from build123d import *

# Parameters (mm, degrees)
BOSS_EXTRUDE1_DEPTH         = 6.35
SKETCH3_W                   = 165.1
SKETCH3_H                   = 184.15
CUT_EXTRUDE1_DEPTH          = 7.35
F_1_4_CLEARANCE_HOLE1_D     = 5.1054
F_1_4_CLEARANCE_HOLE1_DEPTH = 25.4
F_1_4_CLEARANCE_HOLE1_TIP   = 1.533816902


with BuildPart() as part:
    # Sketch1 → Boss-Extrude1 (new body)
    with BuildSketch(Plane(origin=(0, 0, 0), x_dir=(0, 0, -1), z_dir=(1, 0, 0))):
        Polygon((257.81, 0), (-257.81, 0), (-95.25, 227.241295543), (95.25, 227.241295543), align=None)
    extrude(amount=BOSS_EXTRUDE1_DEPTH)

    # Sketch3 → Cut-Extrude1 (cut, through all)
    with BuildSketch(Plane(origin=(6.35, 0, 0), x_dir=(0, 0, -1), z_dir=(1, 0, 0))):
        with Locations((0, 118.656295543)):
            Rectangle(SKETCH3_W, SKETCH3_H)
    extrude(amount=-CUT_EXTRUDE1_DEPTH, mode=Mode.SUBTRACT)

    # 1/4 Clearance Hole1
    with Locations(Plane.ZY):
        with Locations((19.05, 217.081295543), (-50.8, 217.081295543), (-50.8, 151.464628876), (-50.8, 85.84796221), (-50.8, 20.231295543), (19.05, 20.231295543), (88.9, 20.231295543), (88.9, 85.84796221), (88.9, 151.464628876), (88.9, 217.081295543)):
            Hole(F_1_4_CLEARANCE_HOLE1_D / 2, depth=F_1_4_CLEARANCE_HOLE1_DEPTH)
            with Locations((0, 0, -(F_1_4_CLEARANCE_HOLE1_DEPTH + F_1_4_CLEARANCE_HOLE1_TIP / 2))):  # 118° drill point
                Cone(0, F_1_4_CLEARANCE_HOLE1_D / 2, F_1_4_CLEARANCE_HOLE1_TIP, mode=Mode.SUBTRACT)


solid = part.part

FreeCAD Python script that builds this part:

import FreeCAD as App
import Part
import Sketcher

V = App.Vector
Q = App.Units.Quantity

doc = App.newDocument("Part")
body = doc.addObject("PartDesign::Body", "Body")

sketch1 = doc.addObject("Sketcher::SketchObject", "Sketch")
body.addObject(sketch1)
sketch1.AttachmentSupport = (doc.YZ_Plane, [""])
sketch1.MapMode = "FlatFace"
sketch1.addGeometry([
    Part.LineSegment(V(0, 257.81, 0), V(0, -257.81, 0)),
    Part.LineSegment(V(0, -257.81, 0), V(227.241296, -95.25, 0)),
    Part.LineSegment(V(227.241296, -95.25, 0), V(227.241296, 95.25, 0)),
    Part.LineSegment(V(227.241296, 95.25, 0), V(0, 257.81, 0)),
], False)
sketch1.addConstraint([
    Sketcher.Constraint("Coincident", 0, 2, 1, 1),
    Sketcher.Constraint("Coincident", 1, 2, 2, 1),
    Sketcher.Constraint("Coincident", 2, 2, 3, 1),
    Sketcher.Constraint("Coincident", 3, 2, 0, 1),
    Sketcher.Constraint("Vertical", 0),
    Sketcher.Constraint("Vertical", 2),
    Sketcher.Constraint("Symmetric", 0, 2, 3, 2, -1, 1),
    Sketcher.Constraint("Equal", 1, 3),
    Sketcher.Constraint("Distance", 1, Q("11 in")),
    Sketcher.Constraint("DistanceY", 0, 2, 0, 1, Q("20.3 in")),
    Sketcher.Constraint("DistanceY", 2, 1, 2, 2, Q("7.5 in")),
])
pad1 = doc.addObject("PartDesign::Pad", "Pad")
body.addObject(pad1)
pad1.Profile = sketch1
pad1.Length = Q("0.25 in")

sketch2 = doc.addObject("Sketcher::SketchObject", "Sketch001")
body.addObject(sketch2)
sketch2.AttachmentSupport = (doc.YZ_Plane, [""])
sketch2.MapMode = "FlatFace"
sketch2.AttachmentOffset = App.Placement(V(0, 0, 0.25 * 25.4), App.Rotation())
sketch2.addGeometry([
    Part.LineSegment(V(210.731296, 82.55, 0), V(26.581296, 82.55, 0)),
    Part.LineSegment(V(26.581296, 82.55, 0), V(26.581296, -82.55, 0)),
    Part.LineSegment(V(26.581296, -82.55, 0), V(210.731296, -82.55, 0)),
    Part.LineSegment(V(210.731296, -82.55, 0), V(210.731296, 82.55, 0)),
], False)
sketch2.addConstraint([
    Sketcher.Constraint("Coincident", 0, 2, 1, 1),
    Sketcher.Constraint("Coincident", 1, 2, 2, 1),
    Sketcher.Constraint("Coincident", 2, 2, 3, 1),
    Sketcher.Constraint("Coincident", 3, 2, 0, 1),
    Sketcher.Constraint("Horizontal", 0),
    Sketcher.Constraint("Vertical", 1),
    Sketcher.Constraint("Horizontal", 2),
    Sketcher.Constraint("Vertical", 3),
    Sketcher.Constraint("DistanceY", 1, 2, 1, 1, Q("6.5 in")),
    Sketcher.Constraint("DistanceX", 0, 2, 0, 1, Q("7.25 in")),
    Sketcher.Constraint("DistanceY", -1, 1, 0, 2, Q("3.25 in")),
    Sketcher.Constraint("DistanceX", -1, 1, 0, 2, 26.581296),
])
pocket1 = doc.addObject("PartDesign::Pocket", "Pocket")
body.addObject(pocket1)
pocket1.Profile = sketch2
pocket1.Type = "ThroughAll"

sketch3 = doc.addObject("Sketcher::SketchObject", "Sketch002")
body.addObject(sketch3)
sketch3.AttachmentSupport = (doc.YZ_Plane, [""])
sketch3.MapMode = "FlatFace"
sketch3.addGeometry([
    Part.Circle(V(217.081296, 19.05, 0), V(0, 0, 1), 2.5527),
    Part.Circle(V(217.081296, -50.8, 0), V(0, 0, 1), 2.5527),
    Part.Circle(V(151.464629, -50.8, 0), V(0, 0, 1), 2.5527),
    Part.Circle(V(85.847962, -50.8, 0), V(0, 0, 1), 2.5527),
    Part.Circle(V(20.231296, -50.8, 0), V(0, 0, 1), 2.5527),
    Part.Circle(V(20.231296, 19.05, 0), V(0, 0, 1), 2.5527),
    Part.Circle(V(20.231296, 88.9, 0), V(0, 0, 1), 2.5527),
    Part.Circle(V(85.847962, 88.9, 0), V(0, 0, 1), 2.5527),
    Part.Circle(V(151.464629, 88.9, 0), V(0, 0, 1), 2.5527),
    Part.Circle(V(217.081296, 88.9, 0), V(0, 0, 1), 2.5527),
], False)
sketch3.addConstraint([
    Sketcher.Constraint("Equal", 0, 1),
    Sketcher.Constraint("Equal", 1, 2),
    Sketcher.Constraint("Equal", 2, 3),
    Sketcher.Constraint("Equal", 3, 4),
    Sketcher.Constraint("Equal", 4, 5),
    Sketcher.Constraint("Equal", 5, 6),
    Sketcher.Constraint("Equal", 6, 7),
    Sketcher.Constraint("Equal", 7, 8),
    Sketcher.Constraint("Equal", 8, 9),
    Sketcher.Constraint("Horizontal", 1, 3, 2, 3),
    Sketcher.Constraint("Horizontal", 2, 3, 3, 3),
    Sketcher.Constraint("Horizontal", 3, 3, 4, 3),
    Sketcher.Constraint("Horizontal", 0, 3, 5, 3),
    Sketcher.Constraint("Horizontal", 6, 3, 7, 3),
    Sketcher.Constraint("Horizontal", 7, 3, 8, 3),
    Sketcher.Constraint("Horizontal", 8, 3, 9, 3),
    Sketcher.Constraint("Vertical", 0, 3, 1, 3),
    Sketcher.Constraint("Vertical", 4, 3, 5, 3),
    Sketcher.Constraint("Vertical", 5, 3, 6, 3),
    Sketcher.Constraint("Vertical", 3, 3, 7, 3),
    Sketcher.Constraint("Vertical", 2, 3, 8, 3),
    Sketcher.Constraint("Vertical", 1, 3, 9, 3),
    Sketcher.Constraint("Diameter", 0, Q("0.201 in")),
    Sketcher.Constraint("DistanceY", 1, 3, -1, 1, Q("2 in")),
    Sketcher.Constraint("DistanceY", -1, 1, 6, 3, Q("3.5 in")),
    Sketcher.Constraint("DistanceY", -1, 1, 0, 3, Q("0.75 in")),
    Sketcher.Constraint("DistanceX", 4, 3, 1, 3, Q("7.75 in")),
    Sketcher.Constraint("DistanceX", -1, 1, 2, 3, 151.464629),
    Sketcher.Constraint("DistanceX", -1, 1, 0, 3, 217.081296),
    Sketcher.Constraint("DistanceX", -1, 1, 3, 3, 85.847962),
])
doc.recompute()
hole = doc.addObject("PartDesign::Hole", "Hole")
body.addObject(hole)
hole.Profile = sketch3
hole.ThreadType = "None"
hole.Diameter = Q("0.201 in")
hole.DepthType = "Dimension"
hole.Depth = Q("1 in")
hole.DrillPoint = "Angled"
hole.DrillPointAngle = 118
hole.Reversed = True

doc.recompute()
